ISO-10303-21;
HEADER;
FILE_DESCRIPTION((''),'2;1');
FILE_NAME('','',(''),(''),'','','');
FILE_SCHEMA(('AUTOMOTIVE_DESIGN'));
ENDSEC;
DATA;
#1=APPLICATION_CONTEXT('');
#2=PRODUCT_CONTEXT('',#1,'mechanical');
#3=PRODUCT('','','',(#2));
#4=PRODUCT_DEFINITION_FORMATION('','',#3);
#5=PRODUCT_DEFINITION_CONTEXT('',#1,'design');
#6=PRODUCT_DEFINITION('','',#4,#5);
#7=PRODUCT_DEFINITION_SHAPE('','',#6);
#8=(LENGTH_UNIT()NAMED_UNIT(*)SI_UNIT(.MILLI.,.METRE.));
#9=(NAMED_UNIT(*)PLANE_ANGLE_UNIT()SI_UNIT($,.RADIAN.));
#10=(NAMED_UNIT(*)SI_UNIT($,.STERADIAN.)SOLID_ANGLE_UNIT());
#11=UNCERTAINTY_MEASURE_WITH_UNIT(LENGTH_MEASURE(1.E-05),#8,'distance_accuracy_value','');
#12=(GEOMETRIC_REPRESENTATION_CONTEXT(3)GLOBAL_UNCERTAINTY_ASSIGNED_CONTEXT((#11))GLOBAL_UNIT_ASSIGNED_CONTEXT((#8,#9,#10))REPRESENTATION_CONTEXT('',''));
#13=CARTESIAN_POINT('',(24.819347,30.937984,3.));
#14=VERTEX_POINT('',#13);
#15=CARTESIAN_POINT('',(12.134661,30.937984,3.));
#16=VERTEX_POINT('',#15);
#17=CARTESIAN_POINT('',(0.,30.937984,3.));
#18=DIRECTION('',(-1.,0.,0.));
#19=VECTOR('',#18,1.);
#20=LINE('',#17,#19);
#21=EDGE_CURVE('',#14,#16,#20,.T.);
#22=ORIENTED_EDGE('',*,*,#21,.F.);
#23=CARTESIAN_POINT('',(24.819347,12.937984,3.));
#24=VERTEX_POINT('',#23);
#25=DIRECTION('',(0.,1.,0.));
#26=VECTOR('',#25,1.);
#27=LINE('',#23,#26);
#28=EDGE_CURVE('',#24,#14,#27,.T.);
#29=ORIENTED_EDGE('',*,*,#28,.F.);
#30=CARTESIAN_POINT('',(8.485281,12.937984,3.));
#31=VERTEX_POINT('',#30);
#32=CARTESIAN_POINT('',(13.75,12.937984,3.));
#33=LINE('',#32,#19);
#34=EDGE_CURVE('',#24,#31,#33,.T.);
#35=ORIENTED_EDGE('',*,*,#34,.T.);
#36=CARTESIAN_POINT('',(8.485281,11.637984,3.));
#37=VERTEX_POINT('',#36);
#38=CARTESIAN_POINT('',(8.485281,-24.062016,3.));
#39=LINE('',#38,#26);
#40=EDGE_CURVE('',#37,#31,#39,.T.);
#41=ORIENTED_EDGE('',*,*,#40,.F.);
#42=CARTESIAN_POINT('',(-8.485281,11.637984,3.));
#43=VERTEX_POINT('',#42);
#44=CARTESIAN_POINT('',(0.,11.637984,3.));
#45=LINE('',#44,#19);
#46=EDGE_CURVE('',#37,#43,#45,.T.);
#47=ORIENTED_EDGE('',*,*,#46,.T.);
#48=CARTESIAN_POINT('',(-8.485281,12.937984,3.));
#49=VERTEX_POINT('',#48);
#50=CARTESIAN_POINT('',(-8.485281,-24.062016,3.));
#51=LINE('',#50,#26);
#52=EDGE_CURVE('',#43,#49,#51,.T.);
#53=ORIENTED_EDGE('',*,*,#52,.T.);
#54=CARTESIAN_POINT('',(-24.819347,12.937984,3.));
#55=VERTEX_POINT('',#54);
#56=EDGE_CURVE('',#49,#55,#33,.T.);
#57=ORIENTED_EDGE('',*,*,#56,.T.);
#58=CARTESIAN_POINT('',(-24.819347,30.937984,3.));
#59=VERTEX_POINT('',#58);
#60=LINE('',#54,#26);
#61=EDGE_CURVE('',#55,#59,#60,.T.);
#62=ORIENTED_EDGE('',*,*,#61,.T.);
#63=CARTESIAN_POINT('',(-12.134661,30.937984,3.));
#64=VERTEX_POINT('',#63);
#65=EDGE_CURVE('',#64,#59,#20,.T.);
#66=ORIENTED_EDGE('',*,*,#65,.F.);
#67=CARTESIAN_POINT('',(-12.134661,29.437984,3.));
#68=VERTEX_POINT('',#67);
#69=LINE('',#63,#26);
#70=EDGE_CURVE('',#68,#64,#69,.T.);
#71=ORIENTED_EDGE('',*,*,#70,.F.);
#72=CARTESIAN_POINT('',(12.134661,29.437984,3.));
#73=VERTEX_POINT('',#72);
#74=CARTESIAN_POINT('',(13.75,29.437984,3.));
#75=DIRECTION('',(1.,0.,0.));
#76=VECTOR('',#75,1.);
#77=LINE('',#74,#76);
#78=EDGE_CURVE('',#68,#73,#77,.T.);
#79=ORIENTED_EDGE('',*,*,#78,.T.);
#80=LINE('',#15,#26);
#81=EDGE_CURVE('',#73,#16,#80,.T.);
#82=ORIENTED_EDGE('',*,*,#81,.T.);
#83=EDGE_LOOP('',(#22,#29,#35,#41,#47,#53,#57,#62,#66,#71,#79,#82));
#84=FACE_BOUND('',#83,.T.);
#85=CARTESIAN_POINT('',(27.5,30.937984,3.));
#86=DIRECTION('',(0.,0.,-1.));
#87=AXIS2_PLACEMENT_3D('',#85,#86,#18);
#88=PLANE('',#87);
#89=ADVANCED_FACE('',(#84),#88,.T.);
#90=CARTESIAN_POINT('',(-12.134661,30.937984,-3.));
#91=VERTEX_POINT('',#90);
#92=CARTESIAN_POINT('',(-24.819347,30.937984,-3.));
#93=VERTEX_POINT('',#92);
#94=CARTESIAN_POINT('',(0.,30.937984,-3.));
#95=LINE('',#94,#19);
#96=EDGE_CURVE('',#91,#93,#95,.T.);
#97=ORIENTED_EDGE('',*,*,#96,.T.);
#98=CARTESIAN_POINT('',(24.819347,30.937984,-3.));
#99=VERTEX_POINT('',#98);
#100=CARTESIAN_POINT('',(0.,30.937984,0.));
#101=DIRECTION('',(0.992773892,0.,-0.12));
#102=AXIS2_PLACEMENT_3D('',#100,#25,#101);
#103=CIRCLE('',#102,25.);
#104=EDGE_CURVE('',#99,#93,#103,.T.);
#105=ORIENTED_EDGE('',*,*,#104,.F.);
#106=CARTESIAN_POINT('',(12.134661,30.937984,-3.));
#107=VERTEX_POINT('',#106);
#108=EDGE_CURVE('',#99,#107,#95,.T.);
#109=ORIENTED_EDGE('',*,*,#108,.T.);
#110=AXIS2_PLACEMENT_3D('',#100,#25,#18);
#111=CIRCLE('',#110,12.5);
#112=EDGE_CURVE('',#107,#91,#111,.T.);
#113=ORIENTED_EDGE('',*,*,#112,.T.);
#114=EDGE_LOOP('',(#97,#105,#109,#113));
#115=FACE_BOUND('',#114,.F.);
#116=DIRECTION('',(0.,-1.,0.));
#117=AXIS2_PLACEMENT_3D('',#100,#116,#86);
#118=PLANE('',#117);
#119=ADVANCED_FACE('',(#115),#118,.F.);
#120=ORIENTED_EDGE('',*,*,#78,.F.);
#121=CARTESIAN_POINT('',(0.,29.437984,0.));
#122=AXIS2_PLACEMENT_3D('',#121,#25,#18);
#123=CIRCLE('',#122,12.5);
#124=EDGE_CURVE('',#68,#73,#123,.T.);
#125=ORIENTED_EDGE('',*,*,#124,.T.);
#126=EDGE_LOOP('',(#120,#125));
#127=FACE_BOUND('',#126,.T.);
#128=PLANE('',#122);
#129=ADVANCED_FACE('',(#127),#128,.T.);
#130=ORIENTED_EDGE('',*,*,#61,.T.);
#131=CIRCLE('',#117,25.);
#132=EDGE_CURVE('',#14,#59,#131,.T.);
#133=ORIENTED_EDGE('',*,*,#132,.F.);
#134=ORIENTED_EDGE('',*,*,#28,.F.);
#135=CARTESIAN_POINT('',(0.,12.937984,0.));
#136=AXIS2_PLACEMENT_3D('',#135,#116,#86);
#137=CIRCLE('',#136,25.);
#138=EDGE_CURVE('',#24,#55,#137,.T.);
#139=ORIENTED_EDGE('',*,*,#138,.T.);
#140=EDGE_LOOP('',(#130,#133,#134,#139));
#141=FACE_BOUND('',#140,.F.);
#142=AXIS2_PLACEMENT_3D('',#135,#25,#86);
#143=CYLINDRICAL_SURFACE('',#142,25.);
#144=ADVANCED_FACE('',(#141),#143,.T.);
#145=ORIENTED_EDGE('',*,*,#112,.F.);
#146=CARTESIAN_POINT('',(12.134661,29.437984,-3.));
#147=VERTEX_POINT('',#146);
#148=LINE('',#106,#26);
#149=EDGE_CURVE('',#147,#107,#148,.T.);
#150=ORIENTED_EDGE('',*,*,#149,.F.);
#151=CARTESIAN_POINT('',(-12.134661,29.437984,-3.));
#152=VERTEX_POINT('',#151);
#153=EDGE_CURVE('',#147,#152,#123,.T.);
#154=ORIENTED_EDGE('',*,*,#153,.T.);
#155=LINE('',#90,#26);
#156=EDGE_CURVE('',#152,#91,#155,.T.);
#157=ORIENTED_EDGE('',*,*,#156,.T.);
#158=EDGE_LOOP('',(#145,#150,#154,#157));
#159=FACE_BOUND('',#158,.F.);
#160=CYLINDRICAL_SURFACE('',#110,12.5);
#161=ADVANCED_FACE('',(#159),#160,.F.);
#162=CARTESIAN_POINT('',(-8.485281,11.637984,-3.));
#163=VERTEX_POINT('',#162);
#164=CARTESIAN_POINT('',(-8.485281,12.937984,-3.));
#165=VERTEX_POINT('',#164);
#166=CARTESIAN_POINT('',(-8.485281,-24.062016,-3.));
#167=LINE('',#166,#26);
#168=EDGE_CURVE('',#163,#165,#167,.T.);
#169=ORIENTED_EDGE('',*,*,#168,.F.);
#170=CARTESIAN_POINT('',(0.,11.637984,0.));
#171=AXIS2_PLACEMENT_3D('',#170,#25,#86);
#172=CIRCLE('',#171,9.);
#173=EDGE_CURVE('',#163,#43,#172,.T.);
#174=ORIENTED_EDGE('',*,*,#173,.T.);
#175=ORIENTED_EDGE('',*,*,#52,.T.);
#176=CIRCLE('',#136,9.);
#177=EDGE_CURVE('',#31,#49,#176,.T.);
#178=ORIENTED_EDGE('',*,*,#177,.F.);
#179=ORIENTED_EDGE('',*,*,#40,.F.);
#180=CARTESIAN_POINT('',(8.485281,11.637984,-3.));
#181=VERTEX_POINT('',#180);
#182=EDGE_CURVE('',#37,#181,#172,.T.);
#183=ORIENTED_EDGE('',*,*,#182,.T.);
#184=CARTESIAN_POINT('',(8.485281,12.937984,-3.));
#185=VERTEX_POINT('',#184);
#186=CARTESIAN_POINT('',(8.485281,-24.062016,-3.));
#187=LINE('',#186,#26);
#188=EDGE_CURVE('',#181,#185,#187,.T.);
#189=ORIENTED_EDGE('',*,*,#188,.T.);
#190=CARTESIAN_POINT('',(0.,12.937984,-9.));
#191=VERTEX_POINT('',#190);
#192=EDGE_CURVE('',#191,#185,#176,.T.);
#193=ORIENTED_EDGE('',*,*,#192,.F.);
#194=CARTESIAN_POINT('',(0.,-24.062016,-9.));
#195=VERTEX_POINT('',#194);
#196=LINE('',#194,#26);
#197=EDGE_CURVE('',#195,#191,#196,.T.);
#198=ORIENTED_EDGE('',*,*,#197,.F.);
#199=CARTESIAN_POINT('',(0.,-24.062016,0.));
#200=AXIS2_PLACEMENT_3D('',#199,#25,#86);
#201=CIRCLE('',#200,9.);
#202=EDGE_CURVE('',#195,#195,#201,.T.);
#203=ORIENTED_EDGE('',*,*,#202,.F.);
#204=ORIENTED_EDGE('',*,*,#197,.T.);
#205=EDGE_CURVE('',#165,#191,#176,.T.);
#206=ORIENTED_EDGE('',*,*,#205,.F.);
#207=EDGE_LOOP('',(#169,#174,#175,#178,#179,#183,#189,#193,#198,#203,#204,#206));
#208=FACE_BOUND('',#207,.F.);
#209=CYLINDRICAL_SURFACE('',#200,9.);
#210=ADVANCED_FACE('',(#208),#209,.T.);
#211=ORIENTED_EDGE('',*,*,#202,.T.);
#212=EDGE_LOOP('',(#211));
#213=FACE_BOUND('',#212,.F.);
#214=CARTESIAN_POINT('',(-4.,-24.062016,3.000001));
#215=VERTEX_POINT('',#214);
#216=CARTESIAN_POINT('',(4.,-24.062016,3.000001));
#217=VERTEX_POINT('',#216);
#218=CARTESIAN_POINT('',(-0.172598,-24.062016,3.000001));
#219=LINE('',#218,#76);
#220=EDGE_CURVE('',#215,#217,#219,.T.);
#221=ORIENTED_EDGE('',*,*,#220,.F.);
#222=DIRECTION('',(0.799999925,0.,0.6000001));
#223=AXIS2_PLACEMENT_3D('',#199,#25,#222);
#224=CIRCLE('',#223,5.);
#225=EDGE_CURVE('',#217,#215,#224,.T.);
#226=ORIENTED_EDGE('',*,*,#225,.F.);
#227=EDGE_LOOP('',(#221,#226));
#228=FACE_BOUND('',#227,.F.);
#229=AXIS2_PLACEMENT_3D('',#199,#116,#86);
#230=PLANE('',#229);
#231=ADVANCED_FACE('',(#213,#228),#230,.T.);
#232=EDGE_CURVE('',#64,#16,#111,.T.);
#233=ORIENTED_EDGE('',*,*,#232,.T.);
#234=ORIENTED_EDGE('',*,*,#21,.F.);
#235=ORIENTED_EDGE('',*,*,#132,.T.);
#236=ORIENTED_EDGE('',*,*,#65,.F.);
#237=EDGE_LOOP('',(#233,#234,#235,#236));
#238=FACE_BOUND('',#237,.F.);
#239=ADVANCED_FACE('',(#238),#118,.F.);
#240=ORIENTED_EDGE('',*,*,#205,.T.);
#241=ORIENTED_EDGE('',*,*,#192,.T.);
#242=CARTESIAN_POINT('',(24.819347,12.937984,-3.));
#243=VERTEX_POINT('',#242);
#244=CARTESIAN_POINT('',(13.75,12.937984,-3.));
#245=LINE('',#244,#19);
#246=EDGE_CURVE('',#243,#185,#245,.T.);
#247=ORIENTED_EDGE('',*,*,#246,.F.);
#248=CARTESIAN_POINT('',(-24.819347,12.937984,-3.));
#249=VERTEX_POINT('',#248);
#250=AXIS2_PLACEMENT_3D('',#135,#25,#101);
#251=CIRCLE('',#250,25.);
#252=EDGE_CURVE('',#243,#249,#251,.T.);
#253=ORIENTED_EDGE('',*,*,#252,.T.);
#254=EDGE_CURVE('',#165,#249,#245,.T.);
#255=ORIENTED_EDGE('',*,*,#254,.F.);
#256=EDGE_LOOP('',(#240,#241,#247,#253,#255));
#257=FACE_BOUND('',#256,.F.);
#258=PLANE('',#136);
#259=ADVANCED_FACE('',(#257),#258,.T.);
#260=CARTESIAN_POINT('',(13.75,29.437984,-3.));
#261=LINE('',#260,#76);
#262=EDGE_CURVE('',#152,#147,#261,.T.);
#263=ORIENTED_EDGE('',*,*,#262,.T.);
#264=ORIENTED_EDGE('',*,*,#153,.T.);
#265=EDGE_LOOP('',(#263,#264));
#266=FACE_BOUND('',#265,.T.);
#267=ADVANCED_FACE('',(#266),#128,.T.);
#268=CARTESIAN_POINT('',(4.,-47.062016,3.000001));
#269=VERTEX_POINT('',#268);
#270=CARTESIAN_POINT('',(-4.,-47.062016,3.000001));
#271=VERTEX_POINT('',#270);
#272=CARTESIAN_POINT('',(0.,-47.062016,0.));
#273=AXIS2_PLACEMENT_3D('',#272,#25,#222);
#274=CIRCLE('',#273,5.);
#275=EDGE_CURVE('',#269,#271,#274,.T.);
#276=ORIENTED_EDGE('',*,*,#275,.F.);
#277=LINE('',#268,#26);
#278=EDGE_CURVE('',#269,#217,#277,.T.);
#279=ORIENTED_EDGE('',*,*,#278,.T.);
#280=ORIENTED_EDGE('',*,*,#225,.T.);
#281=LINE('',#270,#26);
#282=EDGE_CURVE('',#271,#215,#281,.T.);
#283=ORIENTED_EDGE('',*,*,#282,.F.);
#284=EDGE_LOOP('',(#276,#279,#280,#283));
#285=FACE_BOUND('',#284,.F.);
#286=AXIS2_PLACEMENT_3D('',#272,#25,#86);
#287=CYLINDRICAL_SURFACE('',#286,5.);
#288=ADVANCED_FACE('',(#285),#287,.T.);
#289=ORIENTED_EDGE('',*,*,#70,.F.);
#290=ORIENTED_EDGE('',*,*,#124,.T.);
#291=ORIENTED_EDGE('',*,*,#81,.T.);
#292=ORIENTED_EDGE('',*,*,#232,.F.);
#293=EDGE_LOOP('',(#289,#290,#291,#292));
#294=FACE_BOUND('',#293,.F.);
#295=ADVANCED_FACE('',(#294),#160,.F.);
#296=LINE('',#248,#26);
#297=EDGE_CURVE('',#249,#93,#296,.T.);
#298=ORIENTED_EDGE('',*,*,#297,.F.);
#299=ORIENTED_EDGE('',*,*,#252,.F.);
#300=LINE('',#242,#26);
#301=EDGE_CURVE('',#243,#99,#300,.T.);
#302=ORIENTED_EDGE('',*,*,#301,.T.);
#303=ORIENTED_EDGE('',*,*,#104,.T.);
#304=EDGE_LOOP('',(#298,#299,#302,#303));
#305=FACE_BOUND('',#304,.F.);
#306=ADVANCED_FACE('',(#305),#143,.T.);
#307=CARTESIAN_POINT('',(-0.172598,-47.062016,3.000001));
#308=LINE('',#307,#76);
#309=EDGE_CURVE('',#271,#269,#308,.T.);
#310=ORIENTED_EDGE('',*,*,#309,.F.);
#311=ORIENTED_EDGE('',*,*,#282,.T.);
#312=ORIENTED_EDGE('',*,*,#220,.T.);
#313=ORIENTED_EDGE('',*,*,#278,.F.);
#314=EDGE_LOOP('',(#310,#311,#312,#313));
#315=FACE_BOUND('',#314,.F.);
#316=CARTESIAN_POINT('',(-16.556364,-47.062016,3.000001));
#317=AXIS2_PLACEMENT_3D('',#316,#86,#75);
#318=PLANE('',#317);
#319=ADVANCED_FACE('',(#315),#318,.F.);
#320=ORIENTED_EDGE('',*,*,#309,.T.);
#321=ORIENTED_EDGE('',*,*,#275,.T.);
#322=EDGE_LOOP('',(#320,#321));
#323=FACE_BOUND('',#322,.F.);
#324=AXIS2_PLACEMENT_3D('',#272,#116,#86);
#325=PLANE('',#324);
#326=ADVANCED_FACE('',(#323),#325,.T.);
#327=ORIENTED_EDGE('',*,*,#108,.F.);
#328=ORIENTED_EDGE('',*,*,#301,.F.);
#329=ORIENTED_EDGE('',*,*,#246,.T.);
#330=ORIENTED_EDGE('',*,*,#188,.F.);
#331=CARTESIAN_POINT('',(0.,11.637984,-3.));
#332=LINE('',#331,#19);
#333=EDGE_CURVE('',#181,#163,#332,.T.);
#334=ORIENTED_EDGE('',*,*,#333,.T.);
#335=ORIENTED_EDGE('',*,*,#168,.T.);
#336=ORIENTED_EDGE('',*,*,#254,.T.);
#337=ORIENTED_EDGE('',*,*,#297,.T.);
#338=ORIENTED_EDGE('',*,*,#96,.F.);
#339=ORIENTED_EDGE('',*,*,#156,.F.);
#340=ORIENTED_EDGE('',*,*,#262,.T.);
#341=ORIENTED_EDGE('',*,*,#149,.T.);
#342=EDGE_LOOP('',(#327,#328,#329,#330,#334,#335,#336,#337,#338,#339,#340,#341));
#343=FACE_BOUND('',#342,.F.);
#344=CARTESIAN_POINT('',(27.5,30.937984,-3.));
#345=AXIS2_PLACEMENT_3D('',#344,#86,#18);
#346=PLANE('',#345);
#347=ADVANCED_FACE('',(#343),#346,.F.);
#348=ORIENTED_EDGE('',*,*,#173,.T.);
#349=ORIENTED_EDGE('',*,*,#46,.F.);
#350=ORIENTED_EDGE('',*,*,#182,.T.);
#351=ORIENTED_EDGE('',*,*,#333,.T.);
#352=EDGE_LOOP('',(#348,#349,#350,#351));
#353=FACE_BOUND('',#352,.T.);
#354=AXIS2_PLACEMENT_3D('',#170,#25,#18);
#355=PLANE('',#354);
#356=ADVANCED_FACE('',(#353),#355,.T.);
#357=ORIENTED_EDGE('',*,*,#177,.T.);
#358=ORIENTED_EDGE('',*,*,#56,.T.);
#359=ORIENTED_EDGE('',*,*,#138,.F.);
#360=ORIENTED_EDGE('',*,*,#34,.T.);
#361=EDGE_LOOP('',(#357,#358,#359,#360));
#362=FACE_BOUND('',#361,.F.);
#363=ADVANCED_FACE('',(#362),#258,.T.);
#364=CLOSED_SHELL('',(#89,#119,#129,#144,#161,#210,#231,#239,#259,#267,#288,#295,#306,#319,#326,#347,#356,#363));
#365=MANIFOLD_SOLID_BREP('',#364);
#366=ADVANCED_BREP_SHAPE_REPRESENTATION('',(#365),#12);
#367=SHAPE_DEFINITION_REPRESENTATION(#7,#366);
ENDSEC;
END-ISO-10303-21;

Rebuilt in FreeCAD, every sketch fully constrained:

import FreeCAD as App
import Part
import Sketcher
from FreeCAD import Vector
Q = App.Units.Quantity

doc = App.newDocument("Part")
body = doc.addObject("PartDesign::Body", "Body")

sketch1 = body.newObject("Sketcher::SketchObject", "Sketch")
sketch1.AttachmentSupport = (doc.getObject("YZ_Plane"), [""])
sketch1.MapMode = "FlatFace"
sketch1.addGeometry(Part.LineSegment(Vector(30.9, -25, 0), Vector(30.9, 0, 0)), False)
sketch1.addGeometry(Part.LineSegment(Vector(30.9, 0, 0), Vector(-47.1, 0, 0)), False)
sketch1.addGeometry(Part.LineSegment(Vector(-47.1, 0, 0), Vector(-47.1, -5, 0)), False)
sketch1.addGeometry(Part.LineSegment(Vector(-47.1, -5, 0), Vector(-24.1, -5, 0)), False)
sketch1.addGeometry(Part.LineSegment(Vector(-24.1, -5, 0), Vector(-24.1, -9, 0)), False)
sketch1.addGeometry(Part.LineSegment(Vector(-24.1, -9, 0), Vector(12.9, -9, 0)), False)
sketch1.addGeometry(Part.LineSegment(Vector(12.9, -9, 0), Vector(12.9, -25, 0)), False)
sketch1.addGeometry(Part.LineSegment(Vector(12.9, -25, 0), Vector(30.9, -25, 0)), False)
sketch1.addConstraint(Sketcher.Constraint("Coincident", 0, 2, 1, 1))
sketch1.addConstraint(Sketcher.Constraint("Coincident", 1, 2, 2, 1))
sketch1.addConstraint(Sketcher.Constraint("Coincident", 2, 2, 3, 1))
sketch1.addConstraint(Sketcher.Constraint("Coincident", 3, 2, 4, 1))
sketch1.addConstraint(Sketcher.Constraint("Coincident", 4, 2, 5, 1))
sketch1.addConstraint(Sketcher.Constraint("Coincident", 5, 2, 6, 1))
sketch1.addConstraint(Sketcher.Constraint("Coincident", 6, 2, 7, 1))
sketch1.addConstraint(Sketcher.Constraint("Coincident", 7, 2, 0, 1))
sketch1.addConstraint(Sketcher.Constraint("Vertical", 0))
sketch1.addConstraint(Sketcher.Constraint("Horizontal", 1))
sketch1.addConstraint(Sketcher.Constraint("Vertical", 2))
sketch1.addConstraint(Sketcher.Constraint("Horizontal", 3))
sketch1.addConstraint(Sketcher.Constraint("Vertical", 4))
sketch1.addConstraint(Sketcher.Constraint("Horizontal", 5))
sketch1.addConstraint(Sketcher.Constraint("Vertical", 6))
sketch1.addConstraint(Sketcher.Constraint("Horizontal", 7))
sketch1.addConstraint(Sketcher.Constraint("PointOnObject", 0, 2, -1))
sketch1.addConstraint(Sketcher.Constraint("DistanceX", 1, 2, 1, 1, Q("78 mm")))
sketch1.addConstraint(Sketcher.Constraint("DistanceX", 3, 1, 3, 2, Q("23 mm")))
sketch1.addConstraint(Sketcher.Constraint("DistanceX", 5, 1, 5, 2, Q("37 mm")))
sketch1.addConstraint(Sketcher.Constraint("DistanceY", 0, 1, 0, 2, Q("25 mm")))
sketch1.addConstraint(Sketcher.Constraint("DistanceY", 2, 2, 2, 1, Q("5 mm")))
sketch1.addConstraint(Sketcher.Constraint("DistanceY", 4, 2, 4, 1, Q("4 mm")))
sketch1.addConstraint(Sketcher.Constraint("DistanceX", -1, 1, 0, 2, Q("30.937984 mm")))
revolution = body.newObject("PartDesign::Revolution", "Revolution")
revolution.Profile = sketch1
revolution.ReferenceAxis = (sketch1, ["H_Axis"])
revolution.Angle = 360

sketch2 = body.newObject("Sketcher::SketchObject", "Sketch001")
sketch2.AttachmentSupport = (doc.getObject("XZ_Plane"), [""])
sketch2.MapMode = "FlatFace"
sketch2.AttachmentOffset = App.Placement(Vector(0, 0, 47.062016), App.Rotation())
sketch2.addGeometry(Part.LineSegment(Vector(-17, 14, 0), Vector(-17, 3, 0)), False)
sketch2.addGeometry(Part.LineSegment(Vector(-17, 3, 0), Vector(16, 3, 0)), False)
sketch2.addGeometry(Part.LineSegment(Vector(16, 3, 0), Vector(16, 14, 0)), False)
sketch2.addGeometry(Part.LineSegment(Vector(16, 14, 0), Vector(-17, 14, 0)), False)
sketch2.addConstraint(Sketcher.Constraint("Coincident", 0, 2, 1, 1))
sketch2.addConstraint(Sketcher.Constraint("Coincident", 1, 2, 2, 1))
sketch2.addConstraint(Sketcher.Constraint("Coincident", 2, 2, 3, 1))
sketch2.addConstraint(Sketcher.Constraint("Coincident", 3, 2, 0, 1))
sketch2.addConstraint(Sketcher.Constraint("Vertical", 0))
sketch2.addConstraint(Sketcher.Constraint("Horizontal", 1))
sketch2.addConstraint(Sketcher.Constraint("Vertical", 2))
sketch2.addConstraint(Sketcher.Constraint("Horizontal", 3))
sketch2.addConstraint(Sketcher.Constraint("DistanceY", -1, 1, 0, 2, Q("3.000001 mm")))
sketch2.addConstraint(Sketcher.Constraint("DistanceY", 0, 2, 0, 1, Q("10.747779 mm")))
sketch2.addConstraint(Sketcher.Constraint("DistanceX", 1, 1, 1, 2, Q("32.767532 mm")))
sketch2.addConstraint(Sketcher.Constraint("DistanceX", -1, 1, 1, 2, Q("16.211168 mm")))
pocket1 = body.newObject("PartDesign::Pocket", "Pocket")
pocket1.Profile = sketch2
pocket1.Length = 23

sketch3 = body.newObject("Sketcher::SketchObject", "Sketch002")
sketch3.AttachmentSupport = (doc.getObject("XZ_Plane"), [""])
sketch3.MapMode = "FlatFace"
sketch3.AttachmentOffset = App.Placement(Vector(0, 0, -30.937984), App.Rotation())
sketch3.addGeometry(Part.LineSegment(Vector(28, 3, 0), Vector(28, -3, 0)), False)
sketch3.addGeometry(Part.LineSegment(Vector(28, -3, 0), Vector(-28, -3, 0)), False)
sketch3.addGeometry(Part.LineSegment(Vector(-28, -3, 0), Vector(-28, 3, 0)), False)
sketch3.addGeometry(Part.LineSegment(Vector(-28, 3, 0), Vector(28, 3, 0)), False)
sketch3.addConstraint(Sketcher.Constraint("Coincident", 0, 2, 1, 1))
sketch3.addConstraint(Sketcher.Constraint("Coincident", 1, 2, 2, 1))
sketch3.addConstraint(Sketcher.Constraint("Coincident", 2, 2, 3, 1))
sketch3.addConstraint(Sketcher.Constraint("Coincident", 3, 2, 0, 1))
sketch3.addConstraint(Sketcher.Constraint("Vertical", 0))
sketch3.addConstraint(Sketcher.Constraint("Horizontal", 1))
sketch3.addConstraint(Sketcher.Constraint("Vertical", 2))
sketch3.addConstraint(Sketcher.Constraint("Horizontal", 3))
sketch3.addConstraint(Sketcher.Constraint("Symmetric", 0, 2, 2, 2, -1, 1))
sketch3.addConstraint(Sketcher.Constraint("DistanceX", 1, 2, 1, 1, Q("55 mm")))
sketch3.addConstraint(Sketcher.Constraint("DistanceY", 0, 2, 0, 1, Q("6 mm")))
pocket2 = body.newObject("PartDesign::Pocket", "Pocket001")
pocket2.Profile = sketch3
pocket2.Length = 19.3
pocket2.Reversed = True

sketch4 = body.newObject("Sketcher::SketchObject", "Sketch003")
sketch4.AttachmentSupport = (doc.getObject("XZ_Plane"), [""])
sketch4.MapMode = "FlatFace"
sketch4.AttachmentOffset = App.Placement(Vector(0, 0, -30.937984), App.Rotation())
sketch4.addGeometry(Part.Circle(Vector(0, 0, 0), Vector(0, 0, 1), 12), False)
sketch4.addConstraint(Sketcher.Constraint("Coincident", 0, 3, -1, 1))
sketch4.addConstraint(Sketcher.Constraint("Diameter", 0, Q("25 mm")))
pocket3 = body.newObject("PartDesign::Pocket", "Pocket002")
pocket3.Profile = sketch4
pocket3.Length = 1.5
pocket3.Reversed = True

doc.recompute()
